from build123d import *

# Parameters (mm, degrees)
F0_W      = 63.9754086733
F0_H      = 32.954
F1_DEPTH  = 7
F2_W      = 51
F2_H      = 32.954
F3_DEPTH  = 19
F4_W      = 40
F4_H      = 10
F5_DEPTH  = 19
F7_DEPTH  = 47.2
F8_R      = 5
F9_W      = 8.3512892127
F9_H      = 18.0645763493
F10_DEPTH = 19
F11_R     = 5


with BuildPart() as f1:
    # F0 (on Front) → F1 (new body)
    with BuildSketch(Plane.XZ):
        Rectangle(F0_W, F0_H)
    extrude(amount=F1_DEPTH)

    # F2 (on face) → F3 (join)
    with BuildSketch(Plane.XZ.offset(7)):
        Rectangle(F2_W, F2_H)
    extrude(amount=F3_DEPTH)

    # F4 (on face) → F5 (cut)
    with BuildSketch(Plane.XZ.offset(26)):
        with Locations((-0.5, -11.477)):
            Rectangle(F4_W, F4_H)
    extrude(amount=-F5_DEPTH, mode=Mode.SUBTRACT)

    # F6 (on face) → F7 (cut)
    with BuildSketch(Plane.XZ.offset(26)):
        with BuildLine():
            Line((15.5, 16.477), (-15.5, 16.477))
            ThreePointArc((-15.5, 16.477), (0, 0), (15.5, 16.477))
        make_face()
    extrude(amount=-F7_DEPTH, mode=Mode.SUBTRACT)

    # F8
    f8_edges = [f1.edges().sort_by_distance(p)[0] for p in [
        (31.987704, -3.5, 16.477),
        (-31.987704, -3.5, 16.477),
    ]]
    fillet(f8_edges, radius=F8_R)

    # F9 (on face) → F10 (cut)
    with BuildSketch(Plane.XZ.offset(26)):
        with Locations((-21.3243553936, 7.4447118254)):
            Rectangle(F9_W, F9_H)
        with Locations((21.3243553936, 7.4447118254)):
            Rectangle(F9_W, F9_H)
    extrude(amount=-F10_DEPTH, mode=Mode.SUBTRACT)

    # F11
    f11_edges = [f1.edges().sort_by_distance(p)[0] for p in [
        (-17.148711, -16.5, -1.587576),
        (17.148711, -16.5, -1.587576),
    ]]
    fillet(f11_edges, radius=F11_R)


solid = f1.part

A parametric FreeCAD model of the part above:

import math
import FreeCAD as App
import Part
import Sketcher
from FreeCAD import Vector
Q = App.Units.Quantity


def edges_at(feature, points):
    """Names of the edges that pass closest to the given points."""
    edges = feature.Shape.Edges
    near = lambda p: min(range(len(edges)), key=lambda i: edges[i].distToShape(Part.Vertex(*p))[0])
    return sorted({f"Edge{near(p) + 1}" for p in points})


def add_polygon(sketch, points):
    """Adds a closed chain of lines whose ends are joined by coincident constraints."""
    first, n = sketch.GeometryCount, len(points)
    for a, b in zip(points, points[1:] + points[:1]):
        sketch.addGeometry(Part.LineSegment(App.Vector(*a, 0), App.Vector(*b, 0)), False)
    for i in range(n):
        sketch.addConstraint(Sketcher.Constraint("Coincident", first + i, 2, first + (i + 1) % n, 1))

doc = App.newDocument("Part")
body = doc.addObject("PartDesign::Body", "Body")

sketch1 = body.newObject("Sketcher::SketchObject", "Sketch")
sketch1.AttachmentSupport = (doc.getObject("XZ_Plane"), [""])
sketch1.MapMode = "FlatFace"
add_polygon(sketch1, [(-32, 16), (-32, -16), (32, -16), (32, 16)])
sketch1.addConstraint([
    Sketcher.Constraint("Vertical", 0),
    Sketcher.Constraint("Horizontal", 1),
    Sketcher.Constraint("Vertical", 2),
    Sketcher.Constraint("Horizontal", 3),
    Sketcher.Constraint("Symmetric", 0, 2, 2, 2, -1, 1),
    Sketcher.Constraint("DistanceY", 0, 2, 0, 1, Q("32.954 mm")),
    Sketcher.Constraint("DistanceX", 1, 1, 1, 2, Q("63.975409 mm")),
])
pad1 = body.newObject("PartDesign::Pad", "Pad")
pad1.Profile = sketch1
pad1.Length = 7

sketch2 = body.newObject("Sketcher::SketchObject", "Sketch001")
sketch2.AttachmentSupport = (doc.getObject("XZ_Plane"), [""])
sketch2.MapMode = "FlatFace"
sketch2.AttachmentOffset = App.Placement(Vector(0, 0, 7), App.Rotation())
add_polygon(sketch2, [(-26, 16), (-26, -16), (26, -16), (26, 16)])
sketch2.addConstraint([
    Sketcher.Constraint("Vertical", 0),
    Sketcher.Constraint("Horizontal", 1),
    Sketcher.Constraint("Vertical", 2),
    Sketcher.Constraint("Horizontal", 3),
    Sketcher.Constraint("Symmetric", 0, 2, 2, 2, -1, 1),
    Sketcher.Constraint("DistanceX", 1, 1, 1, 2, Q("51 mm")),
    Sketcher.Constraint("DistanceY", 0, 2, 0, 1, Q("32.954 mm")),
])
pad2 = body.newObject("PartDesign::Pad", "Pad001")
pad2.Profile = sketch2
pad2.Length = 19

sketch3 = body.newObject("Sketcher::SketchObject", "Sketch002")
sketch3.AttachmentSupport = (doc.getObject("XZ_Plane"), [""])
sketch3.MapMode = "FlatFace"
sketch3.AttachmentOffset = App.Placement(Vector(0, 0, 26), App.Rotation())
add_polygon(sketch3, [(-20, -6), (-20, -16), (20, -16), (20, -6)])
sketch3.addConstraint([
    Sketcher.Constraint("Vertical", 0),
    Sketcher.Constraint("Horizontal", 1),
    Sketcher.Constraint("Vertical", 2),
    Sketcher.Constraint("Horizontal", 3),
    Sketcher.Constraint("DistanceX", 1, 1, 1, 2, Q("40 mm")),
    Sketcher.Constraint("DistanceY", 0, 2, 0, 1, Q("10 mm")),
    Sketcher.Constraint("DistanceX", 0, 2, -1, 1, Q("20.5 mm")),
    Sketcher.Constraint("DistanceY", 0, 2, -1, 1, Q("16.477 mm")),
])
pocket1 = body.newObject("PartDesign::Pocket", "Pocket")
pocket1.Profile = sketch3
pocket1.Length = 19

sketch4 = body.newObject("Sketcher::SketchObject", "Sketch003")
sketch4.AttachmentSupport = (doc.getObject("XZ_Plane"), [""])
sketch4.MapMode = "FlatFace"
sketch4.AttachmentOffset = App.Placement(Vector(0, 0, 26), App.Rotation())
sketch4.addGeometry([
    Part.LineSegment(Vector(16, 16, 0), Vector(-16, 16, 0)),
    Part.ArcOfCircle(Part.Circle(Vector(0, 16, 0), Vector(0, 0, 1), 16), math.radians(176), math.radians(364)),
], False)
sketch4.addConstraint([
    Sketcher.Constraint("Coincident", 0, 1, 1, 2),
    Sketcher.Constraint("Coincident", 1, 1, 0, 2),
    Sketcher.Constraint("Horizontal", 0),
    Sketcher.Constraint("PointOnObject", 1, 3, -2),
    Sketcher.Constraint("DistanceX", 0, 2, 0, 1, Q("31 mm")),
    Sketcher.Constraint("DistanceY", -1, 1, 0, 1, Q("16.477 mm")),
    Sketcher.Constraint("Radius", 1, Q("15.528965 mm")),
])
pocket2 = body.newObject("PartDesign::Pocket", "Pocket001")
pocket2.Profile = sketch4
pocket2.Length = 47.2
doc.recompute()

fillet = body.newObject("PartDesign::Fillet", "Fillet")
fillet.Base = (pocket2, edges_at(pocket2, [(31.988, -3.5, 16.477), (-31.988, -3.5, 16.477)]))
fillet.Radius = 5

sketch5 = body.newObject("Sketcher::SketchObject", "Sketch004")
sketch5.AttachmentSupport = (doc.getObject("XZ_Plane"), [""])
sketch5.MapMode = "FlatFace"
sketch5.AttachmentOffset = App.Placement(Vector(0, 0, 26), App.Rotation())
add_polygon(sketch5, [(-26, 16), (-26, -2), (-17, -2), (-17, 16)])
add_polygon(sketch5, [(17, 16), (17, -2), (26, -2), (26, 16)])
sketch5.addConstraint([
    Sketcher.Constraint("Vertical", 0),
    Sketcher.Constraint("Horizontal", 1),
    Sketcher.Constraint("Vertical", 2),
    Sketcher.Constraint("Horizontal", 3),
    Sketcher.Constraint("Vertical", 4),
    Sketcher.Constraint("Horizontal", 5),
    Sketcher.Constraint("Vertical", 6),
    Sketcher.Constraint("Horizontal", 7),
    Sketcher.Constraint("Symmetric", 1, 2, 4, 2, -2),
    Sketcher.Constraint("Symmetric", 3, 2, 6, 2, -2),
    Sketcher.Constraint("DistanceX", 0, 2, 5, 2, Q("51 mm")),
    Sketcher.Constraint("DistanceY", -1, 1, 2, 2, Q("16.477 mm")),
    Sketcher.Constraint("DistanceX", 1, 1, 1, 2, Q("8.351289 mm")),
    Sketcher.Constraint("DistanceY", 0, 2, 0, 1, Q("18.064576 mm")),
])
pocket3 = body.newObject("PartDesign::Pocket", "Pocket002")
pocket3.Profile = sketch5
pocket3.Length = 19
doc.recompute()

fillet2 = body.newObject("PartDesign::Fillet", "Fillet001")
fillet2.Base = (pocket3, edges_at(pocket3, [(-17.149, -16.5, -1.588), (17.149, -16.5, -1.588)]))
fillet2.Radius = 5

doc.recompute()
